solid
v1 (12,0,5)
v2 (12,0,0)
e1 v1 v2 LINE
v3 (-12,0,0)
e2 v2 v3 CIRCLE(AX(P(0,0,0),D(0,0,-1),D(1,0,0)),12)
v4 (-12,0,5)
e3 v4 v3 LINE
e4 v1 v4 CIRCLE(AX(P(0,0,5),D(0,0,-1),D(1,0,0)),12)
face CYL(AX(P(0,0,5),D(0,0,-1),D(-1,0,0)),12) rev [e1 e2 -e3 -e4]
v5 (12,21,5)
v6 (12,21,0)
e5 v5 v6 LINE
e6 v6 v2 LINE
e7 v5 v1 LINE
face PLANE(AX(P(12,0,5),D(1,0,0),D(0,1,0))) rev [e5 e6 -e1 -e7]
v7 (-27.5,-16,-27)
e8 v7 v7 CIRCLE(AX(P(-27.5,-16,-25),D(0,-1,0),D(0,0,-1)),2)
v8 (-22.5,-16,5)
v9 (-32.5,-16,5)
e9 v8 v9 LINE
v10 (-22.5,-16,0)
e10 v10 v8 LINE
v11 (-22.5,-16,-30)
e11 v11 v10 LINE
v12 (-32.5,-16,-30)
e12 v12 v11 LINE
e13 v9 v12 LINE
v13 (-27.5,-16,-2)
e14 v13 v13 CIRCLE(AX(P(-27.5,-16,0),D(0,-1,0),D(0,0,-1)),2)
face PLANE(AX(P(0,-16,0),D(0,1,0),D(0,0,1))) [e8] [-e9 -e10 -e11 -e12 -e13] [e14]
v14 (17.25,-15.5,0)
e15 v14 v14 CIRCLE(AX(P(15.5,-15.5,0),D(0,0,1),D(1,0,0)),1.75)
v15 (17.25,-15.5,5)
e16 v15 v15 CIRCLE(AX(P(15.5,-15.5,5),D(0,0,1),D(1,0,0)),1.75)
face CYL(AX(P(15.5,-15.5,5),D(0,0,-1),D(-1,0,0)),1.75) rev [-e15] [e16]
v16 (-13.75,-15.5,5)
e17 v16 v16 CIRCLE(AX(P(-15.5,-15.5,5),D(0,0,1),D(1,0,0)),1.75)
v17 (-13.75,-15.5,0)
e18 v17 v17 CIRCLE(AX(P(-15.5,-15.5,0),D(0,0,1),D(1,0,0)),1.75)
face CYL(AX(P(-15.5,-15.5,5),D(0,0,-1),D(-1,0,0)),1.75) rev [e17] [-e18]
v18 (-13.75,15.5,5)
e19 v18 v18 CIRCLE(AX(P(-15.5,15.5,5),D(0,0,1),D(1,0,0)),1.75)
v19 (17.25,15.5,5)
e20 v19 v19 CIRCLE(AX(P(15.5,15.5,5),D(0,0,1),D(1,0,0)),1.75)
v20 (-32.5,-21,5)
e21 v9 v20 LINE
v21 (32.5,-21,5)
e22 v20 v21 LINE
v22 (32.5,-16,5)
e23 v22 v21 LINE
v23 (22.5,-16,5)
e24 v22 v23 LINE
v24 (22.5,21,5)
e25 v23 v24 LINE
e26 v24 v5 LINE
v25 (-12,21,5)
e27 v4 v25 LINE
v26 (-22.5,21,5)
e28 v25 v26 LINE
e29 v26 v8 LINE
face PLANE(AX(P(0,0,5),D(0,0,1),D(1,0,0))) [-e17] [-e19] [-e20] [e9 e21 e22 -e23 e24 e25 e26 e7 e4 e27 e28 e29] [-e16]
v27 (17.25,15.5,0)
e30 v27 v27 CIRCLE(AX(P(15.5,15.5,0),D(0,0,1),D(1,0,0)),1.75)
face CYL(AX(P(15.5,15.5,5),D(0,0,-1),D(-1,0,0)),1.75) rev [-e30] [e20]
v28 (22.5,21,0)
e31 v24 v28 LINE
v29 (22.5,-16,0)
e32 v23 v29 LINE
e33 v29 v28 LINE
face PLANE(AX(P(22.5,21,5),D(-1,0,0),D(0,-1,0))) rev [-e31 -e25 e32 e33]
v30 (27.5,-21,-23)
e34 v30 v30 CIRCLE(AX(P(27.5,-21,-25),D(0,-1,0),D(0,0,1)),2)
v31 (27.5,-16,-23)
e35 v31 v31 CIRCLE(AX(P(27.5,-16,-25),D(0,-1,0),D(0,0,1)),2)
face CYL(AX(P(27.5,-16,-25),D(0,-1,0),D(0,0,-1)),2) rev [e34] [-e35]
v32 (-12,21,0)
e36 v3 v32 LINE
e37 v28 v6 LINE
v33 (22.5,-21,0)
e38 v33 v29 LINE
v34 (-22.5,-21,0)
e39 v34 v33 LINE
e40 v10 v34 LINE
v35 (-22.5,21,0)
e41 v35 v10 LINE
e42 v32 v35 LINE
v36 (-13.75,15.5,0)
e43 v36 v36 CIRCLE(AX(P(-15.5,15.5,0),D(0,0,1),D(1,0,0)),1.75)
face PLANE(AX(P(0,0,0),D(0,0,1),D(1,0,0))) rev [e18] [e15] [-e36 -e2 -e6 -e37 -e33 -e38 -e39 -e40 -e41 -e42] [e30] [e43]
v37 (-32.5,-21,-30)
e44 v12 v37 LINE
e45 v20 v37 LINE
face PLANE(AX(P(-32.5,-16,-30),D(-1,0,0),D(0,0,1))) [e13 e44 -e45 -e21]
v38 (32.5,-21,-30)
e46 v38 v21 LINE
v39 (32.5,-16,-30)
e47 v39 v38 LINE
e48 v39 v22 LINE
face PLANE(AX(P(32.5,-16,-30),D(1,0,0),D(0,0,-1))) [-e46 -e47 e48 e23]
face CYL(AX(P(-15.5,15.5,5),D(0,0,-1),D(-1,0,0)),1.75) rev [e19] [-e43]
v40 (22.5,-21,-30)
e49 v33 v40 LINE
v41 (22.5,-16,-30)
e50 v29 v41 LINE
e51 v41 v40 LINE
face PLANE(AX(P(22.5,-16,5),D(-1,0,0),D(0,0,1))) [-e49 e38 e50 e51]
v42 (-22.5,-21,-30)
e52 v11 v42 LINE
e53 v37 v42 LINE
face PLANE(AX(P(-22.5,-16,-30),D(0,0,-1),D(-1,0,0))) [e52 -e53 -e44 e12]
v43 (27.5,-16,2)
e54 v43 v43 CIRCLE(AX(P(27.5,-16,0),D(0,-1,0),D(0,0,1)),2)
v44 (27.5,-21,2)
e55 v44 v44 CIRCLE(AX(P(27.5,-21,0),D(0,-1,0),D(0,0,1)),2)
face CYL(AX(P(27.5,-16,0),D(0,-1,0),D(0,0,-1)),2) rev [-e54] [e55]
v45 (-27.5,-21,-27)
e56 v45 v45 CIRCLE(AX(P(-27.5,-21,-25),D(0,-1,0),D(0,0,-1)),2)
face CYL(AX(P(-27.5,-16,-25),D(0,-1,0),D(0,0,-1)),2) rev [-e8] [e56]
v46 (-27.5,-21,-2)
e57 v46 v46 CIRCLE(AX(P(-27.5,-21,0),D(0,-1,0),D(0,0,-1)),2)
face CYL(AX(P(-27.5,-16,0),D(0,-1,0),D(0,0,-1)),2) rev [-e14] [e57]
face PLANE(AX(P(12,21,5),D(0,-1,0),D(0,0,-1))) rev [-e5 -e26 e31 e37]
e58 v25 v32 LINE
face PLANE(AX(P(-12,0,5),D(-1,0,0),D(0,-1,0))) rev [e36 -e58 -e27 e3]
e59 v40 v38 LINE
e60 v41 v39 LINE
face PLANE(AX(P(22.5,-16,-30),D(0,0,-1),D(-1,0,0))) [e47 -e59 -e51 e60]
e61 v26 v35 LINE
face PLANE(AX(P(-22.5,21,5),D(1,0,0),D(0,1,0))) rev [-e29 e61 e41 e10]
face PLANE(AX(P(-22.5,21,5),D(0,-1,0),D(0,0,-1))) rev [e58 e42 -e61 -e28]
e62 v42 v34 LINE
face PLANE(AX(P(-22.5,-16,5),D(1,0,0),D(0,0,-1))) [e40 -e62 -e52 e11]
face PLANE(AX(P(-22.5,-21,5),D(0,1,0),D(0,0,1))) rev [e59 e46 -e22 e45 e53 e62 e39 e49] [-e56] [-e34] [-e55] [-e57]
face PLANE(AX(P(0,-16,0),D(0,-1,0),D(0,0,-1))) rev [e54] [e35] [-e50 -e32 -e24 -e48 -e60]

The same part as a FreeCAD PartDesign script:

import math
import FreeCAD as App
import Part
import Sketcher
from FreeCAD import Vector
Q = App.Units.Quantity

doc = App.newDocument("Part")
body = doc.addObject("PartDesign::Body", "Body")

# Sketch on XY plane
sketch1 = doc.addObject("Sketcher::SketchObject", "Sketch")
body.addObject(sketch1)
sketch1.AttachmentSupport = (doc.XY_Plane, [""])
sketch1.MapMode = "FlatFace"
sketch1.addGeometry(Part.LineSegment(Vector(-12, 0, 0), Vector(-12, 21, 0)), False)
sketch1.addGeometry(Part.LineSegment(Vector(-12, 21, 0), Vector(-22.5, 21, 0)), False)
sketch1.addGeometry(Part.LineSegment(Vector(-22.5, 21, 0), Vector(-22.5, -21, 0)), False)
sketch1.addGeometry(Part.LineSegment(Vector(-22.5, -21, 0), Vector(22.5, -21, 0)), False)
sketch1.addGeometry(Part.LineSegment(Vector(22.5, -21, 0), Vector(22.5, 21, 0)), False)
sketch1.addGeometry(Part.LineSegment(Vector(22.5, 21, 0), Vector(12, 21, 0)), False)
sketch1.addGeometry(Part.LineSegment(Vector(12, 21, 0), Vector(12, 0, 0)), False)
sketch1.addGeometry(Part.ArcOfCircle(Part.Circle(Vector(0, 0, 0), Vector(0, 0, 1), 12), math.radians(180), math.radians(360)), False)
sketch1.addGeometry(Part.Circle(Vector(-15.5, -15.5, 0), Vector(0, 0, 1), 1.8), False)
sketch1.addGeometry(Part.Circle(Vector(15.5, -15.5, 0), Vector(0, 0, 1), 1.8), False)
sketch1.addGeometry(Part.Circle(Vector(-15.5, 15.5, 0), Vector(0, 0, 1), 1.8), False)
sketch1.addGeometry(Part.Circle(Vector(15.5, 15.5, 0), Vector(0, 0, 1), 1.8), False)
sketch1.addConstraint(Sketcher.Constraint("Coincident", 0, 2, 1, 1))
sketch1.addConstraint(Sketcher.Constraint("Coincident", 1, 2, 2, 1))
sketch1.addConstraint(Sketcher.Constraint("Coincident", 2, 2, 3, 1))
sketch1.addConstraint(Sketcher.Constraint("Coincident", 3, 2, 4, 1))
sketch1.addConstraint(Sketcher.Constraint("Coincident", 4, 2, 5, 1))
sketch1.addConstraint(Sketcher.Constraint("Coincident", 5, 2, 6, 1))
sketch1.addConstraint(Sketcher.Constraint("Tangent", 6, 2, 7, 2))
sketch1.addConstraint(Sketcher.Constraint("Tangent", 7, 1, 0, 1))
sketch1.addConstraint(Sketcher.Constraint("Vertical", 0))
sketch1.addConstraint(Sketcher.Constraint("Horizontal", 1))
sketch1.addConstraint(Sketcher.Constraint("Vertical", 2))
sketch1.addConstraint(Sketcher.Constraint("Horizontal", 3))
sketch1.addConstraint(Sketcher.Constraint("Vertical", 4))
sketch1.addConstraint(Sketcher.Constraint("Horizontal", 5))
sketch1.addConstraint(Sketcher.Constraint("Vertical", 6))
sketch1.addConstraint(Sketcher.Constraint("Coincident", 7, 3, -1, 1))
sketch1.addConstraint(Sketcher.Constraint("Equal", 8, 9))
sketch1.addConstraint(Sketcher.Constraint("Equal", 9, 10))
sketch1.addConstraint(Sketcher.Constraint("Equal", 10, 11))
sketch1.addConstraint(Sketcher.Constraint("Symmetric", 9, 3, 10, 3, -1, 1))
sketch1.addConstraint(Sketcher.Constraint("Symmetric", 8, 3, 11, 3, -1, 1))
sketch1.addConstraint(Sketcher.Constraint("Symmetric", 1, 2, 3, 2, -1, 1))
sketch1.addConstraint(Sketcher.Constraint("Symmetric", 8, 3, 9, 3, -2))
sketch1.addConstraint(Sketcher.Constraint("Horizontal", 1, 2, 4, 2))
sketch1.addConstraint(Sketcher.Constraint("Radius", 7, Q("12 mm")))
sketch1.addConstraint(Sketcher.Constraint("Diameter", 8, Q("3.5 mm")))
sketch1.addConstraint(Sketcher.Constraint("DistanceX", 3, 1, 3, 2, Q("45 mm")))
sketch1.addConstraint(Sketcher.Constraint("DistanceY", 0, 1, 0, 2, Q("21 mm")))
sketch1.addConstraint(Sketcher.Constraint("DistanceX", 8, 3, 9, 3, Q("31 mm")))
sketch1.addConstraint(Sketcher.Constraint("DistanceY", 8, 3, 10, 3, Q("31 mm")))
pad1 = doc.addObject("PartDesign::Pad", "Pad")
body.addObject(pad1)
pad1.Profile = sketch1
pad1.Length = 5

# Sketch on XZ plane
sketch2 = doc.addObject("Sketcher::SketchObject", "Sketch001")
body.addObject(sketch2)
sketch2.AttachmentSupport = (doc.XZ_Plane, [""])
sketch2.MapMode = "FlatFace"
sketch2.AttachmentOffset = App.Placement(Vector(0, 0, 21), App.Rotation())
sketch2.addGeometry(Part.LineSegment(Vector(-32.5, 5, 0), Vector(-32.5, -30, 0)), False)
sketch2.addGeometry(Part.LineSegment(Vector(-32.5, -30, 0), Vector(-22.5, -30, 0)), False)
sketch2.addGeometry(Part.LineSegment(Vector(-22.5, -30, 0), Vector(-22.5, 5, 0)), False)
sketch2.addGeometry(Part.LineSegment(Vector(-22.5, 5, 0), Vector(-32.5, 5, 0)), False)
sketch2.addGeometry(Part.Circle(Vector(-27.5, -25, 0), Vector(0, 0, 1), 2), False)
sketch2.addGeometry(Part.Circle(Vector(-27.5, 0, 0), Vector(0, 0, 1), 2), False)
sketch2.addGeometry(Part.LineSegment(Vector(22.5, 5, 0), Vector(22.5, -30, 0)), False)
sketch2.addGeometry(Part.LineSegment(Vector(22.5, -30, 0), Vector(32.5, -30, 0)), False)
sketch2.addGeometry(Part.LineSegment(Vector(32.5, -30, 0), Vector(32.5, 5, 0)), False)
sketch2.addGeometry(Part.LineSegment(Vector(32.5, 5, 0), Vector(22.5, 5, 0)), False)
sketch2.addGeometry(Part.Circle(Vector(27.5, -25, 0), Vector(0, 0, 1), 2), False)
sketch2.addGeometry(Part.Circle(Vector(27.5, 0, 0), Vector(0, 0, 1), 2), False)
sketch2.addConstraint(Sketcher.Constraint("Coincident", 0, 2, 1, 1))
sketch2.addConstraint(Sketcher.Constraint("Coincident", 1, 2, 2, 1))
sketch2.addConstraint(Sketcher.Constraint("Coincident", 2, 2, 3, 1))
sketch2.addConstraint(Sketcher.Constraint("Coincident", 3, 2, 0, 1))
sketch2.addConstraint(Sketcher.Constraint("Coincident", 6, 2, 7, 1))
sketch2.addConstraint(Sketcher.Constraint("Coincident", 7, 2, 8, 1))
sketch2.addConstraint(Sketcher.Constraint("Coincident", 8, 2, 9, 1))
sketch2.addConstraint(Sketcher.Constraint("Coincident", 9, 2, 6, 1))
sketch2.addConstraint(Sketcher.Constraint("Vertical", 0))
sketch2.addConstraint(Sketcher.Constraint("Horizontal", 1))
sketch2.addConstraint(Sketcher.Constraint("Vertical", 2))
sketch2.addConstraint(Sketcher.Constraint("Horizontal", 3))
sketch2.addConstraint(Sketcher.Constraint("Vertical", 6))
sketch2.addConstraint(Sketcher.Constraint("Horizontal", 7))
sketch2.addConstraint(Sketcher.Constraint("Vertical", 8))
sketch2.addConstraint(Sketcher.Constraint("Horizontal", 9))
sketch2.addConstraint(Sketcher.Constraint("Equal", 4, 5))
sketch2.addConstraint(Sketcher.Constraint("Equal", 5, 10))
sketch2.addConstraint(Sketcher.Constraint("Equal", 10, 11))
sketch2.addConstraint(Sketcher.Constraint("Symmetric", 5, 3, 11, 3, -1, 1))
sketch2.addConstraint(Sketcher.Constraint("Symmetric", 4, 3, 10, 3, -2))
sketch2.addConstraint(Sketcher.Constraint("Symmetric", 1, 2, 6, 2, -2))
sketch2.addConstraint(Sketcher.Constraint("Symmetric", 3, 2, 8, 2, -2))
sketch2.addConstraint(Sketcher.Constraint("PointOnObject", 5, 3, -1))
sketch2.addConstraint(Sketcher.Constraint("Vertical", 4, 3, 5, 3))
sketch2.addConstraint(Sketcher.Constraint("Diameter", 4, Q("4 mm")))
sketch2.addConstraint(Sketcher.Constraint("DistanceX", 1, 1, 1, 2, Q("10 mm")))
sketch2.addConstraint(Sketcher.Constraint("DistanceY", 0, 2, 0, 1, Q("35 mm")))
sketch2.addConstraint(Sketcher.Constraint("DistanceY", 4, 3, -1, 1, Q("25 mm")))
sketch2.addConstraint(Sketcher.Constraint("DistanceY", 0, 2, -1, 1, Q("30 mm")))
sketch2.addConstraint(Sketcher.Constraint("DistanceX", 4, 3, 10, 3, Q("55 mm")))
sketch2.addConstraint(Sketcher.Constraint("DistanceX", 0, 2, 4, 3, Q("5 mm")))
pad2 = doc.addObject("PartDesign::Pad", "Pad001")
body.addObject(pad2)
pad2.Profile = sketch2
pad2.Length = 5
pad2.Reversed = True

doc.recompute()
